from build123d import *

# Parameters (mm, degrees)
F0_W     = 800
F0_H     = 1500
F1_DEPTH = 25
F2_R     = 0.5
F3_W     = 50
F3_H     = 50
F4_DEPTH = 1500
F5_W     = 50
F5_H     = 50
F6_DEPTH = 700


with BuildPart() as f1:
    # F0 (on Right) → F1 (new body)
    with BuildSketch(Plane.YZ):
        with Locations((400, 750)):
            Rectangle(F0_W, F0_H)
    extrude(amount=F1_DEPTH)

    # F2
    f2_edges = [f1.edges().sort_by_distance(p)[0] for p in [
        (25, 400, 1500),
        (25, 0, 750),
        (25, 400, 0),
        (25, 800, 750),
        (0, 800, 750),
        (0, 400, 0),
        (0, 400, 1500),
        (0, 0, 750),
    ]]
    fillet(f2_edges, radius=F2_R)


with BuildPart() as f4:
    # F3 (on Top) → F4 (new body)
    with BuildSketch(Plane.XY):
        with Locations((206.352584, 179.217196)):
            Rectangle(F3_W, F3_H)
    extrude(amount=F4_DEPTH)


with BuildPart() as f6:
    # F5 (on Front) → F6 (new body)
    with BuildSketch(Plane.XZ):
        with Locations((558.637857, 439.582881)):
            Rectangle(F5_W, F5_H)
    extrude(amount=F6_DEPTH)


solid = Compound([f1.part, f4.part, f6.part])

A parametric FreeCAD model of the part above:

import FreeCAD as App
import Part
import Sketcher
from FreeCAD import Vector


def edges_at(feature, points):
    """Names of the edges that pass closest to the given points."""
    edges = feature.Shape.Edges
    near = lambda p: min(range(len(edges)), key=lambda i: edges[i].distToShape(Part.Vertex(*p))[0])
    return sorted({f"Edge{near(p) + 1}" for p in points})

doc = App.newDocument("Part")
body = doc.addObject("PartDesign::Body", "Body")

# Sketch on YZ plane
sketch1 = body.newObject("Sketcher::SketchObject", "Sketch")
sketch1.AttachmentSupport = (doc.getObject("YZ_Plane"), [""])
sketch1.MapMode = "FlatFace"
sketch1.addGeometry([
    Part.LineSegment(Vector(0, 1500, 0), Vector(0, 0, 0)),
    Part.LineSegment(Vector(0, 0, 0), Vector(800, 0, 0)),
    Part.LineSegment(Vector(800, 0, 0), Vector(800, 1500, 0)),
    Part.LineSegment(Vector(800, 1500, 0), Vector(0, 1500, 0)),
], False)
sketch1.addConstraint([
    Sketcher.Constraint("Coincident", 0, 2, 1, 1),
    Sketcher.Constraint("Coincident", 1, 2, 2, 1),
    Sketcher.Constraint("Coincident", 2, 2, 3, 1),
    Sketcher.Constraint("Coincident", 3, 2, 0, 1),
    Sketcher.Constraint("Vertical", 0),
    Sketcher.Constraint("Horizontal", 1),
    Sketcher.Constraint("Vertical", 2),
    Sketcher.Constraint("Horizontal", 3),
    Sketcher.Constraint("Coincident", 0, 2, -1, 1),
    Sketcher.Constraint("DistanceX", 1, 1, 1, 2, 800.0),
    Sketcher.Constraint("DistanceY", 0, 2, 0, 1, 1500.0),
])
pad1 = body.newObject("PartDesign::Pad", "Pad")
pad1.Profile = sketch1
pad1.Length = 25
doc.recompute()

fillet = body.newObject("PartDesign::Fillet", "Fillet")
fillet.Base = (pad1, edges_at(pad1, [
    (25, 400, 1500),
    (25, 0, 750),
    (25, 400, 0),
    (25, 800, 750),
    (0, 800, 750),
    (0, 400, 0),
    (0, 400, 1500),
    (0, 0, 750),
]))
fillet.Radius = 0.5
body2 = doc.addObject("PartDesign::Body", "Body001")

# Sketch on XY plane
sketch2 = body2.newObject("Sketcher::SketchObject", "Sketch001")
sketch2.AttachmentSupport = (doc.getObject("XY_Plane001"), [""])
sketch2.MapMode = "FlatFace"
sketch2.addGeometry([
    Part.LineSegment(Vector(181, 204, 0), Vector(181, 154, 0)),
    Part.LineSegment(Vector(181, 154, 0), Vector(231, 154, 0)),
    Part.LineSegment(Vector(231, 154, 0), Vector(231, 204, 0)),
    Part.LineSegment(Vector(231, 204, 0), Vector(181, 204, 0)),
], False)
sketch2.addConstraint([
    Sketcher.Constraint("Coincident", 0, 2, 1, 1),
    Sketcher.Constraint("Coincident", 1, 2, 2, 1),
    Sketcher.Constraint("Coincident", 2, 2, 3, 1),
    Sketcher.Constraint("Coincident", 3, 2, 0, 1),
    Sketcher.Constraint("Vertical", 0),
    Sketcher.Constraint("Horizontal", 1),
    Sketcher.Constraint("Vertical", 2),
    Sketcher.Constraint("Horizontal", 3),
    Sketcher.Constraint("Equal", 3, 0),
    Sketcher.Constraint("DistanceX", 1, 1, 1, 2, 50.0),
    Sketcher.Constraint("DistanceX", -1, 1, 0, 2, 181.352584),
    Sketcher.Constraint("DistanceY", -1, 1, 0, 2, 154.217196),
])
pad2 = body2.newObject("PartDesign::Pad", "Pad001")
pad2.Profile = sketch2
pad2.Length = 1500
body3 = doc.addObject("PartDesign::Body", "Body002")

# Sketch on XZ plane
sketch3 = body3.newObject("Sketcher::SketchObject", "Sketch002")
sketch3.AttachmentSupport = (doc.getObject("XZ_Plane002"), [""])
sketch3.MapMode = "FlatFace"
sketch3.addGeometry([
    Part.LineSegment(Vector(534, 465, 0), Vector(534, 415, 0)),
    Part.LineSegment(Vector(534, 415, 0), Vector(584, 415, 0)),
    Part.LineSegment(Vector(584, 415, 0), Vector(584, 465, 0)),
    Part.LineSegment(Vector(584, 465, 0), Vector(534, 465, 0)),
], False)
sketch3.addConstraint([
    Sketcher.Constraint("Coincident", 0, 2, 1, 1),
    Sketcher.Constraint("Coincident", 1, 2, 2, 1),
    Sketcher.Constraint("Coincident", 2, 2, 3, 1),
    Sketcher.Constraint("Coincident", 3, 2, 0, 1),
    Sketcher.Constraint("Vertical", 0),
    Sketcher.Constraint("Horizontal", 1),
    Sketcher.Constraint("Vertical", 2),
    Sketcher.Constraint("Horizontal", 3),
    Sketcher.Constraint("Equal", 3, 0),
    Sketcher.Constraint("DistanceX", 1, 1, 1, 2, 50.0),
    Sketcher.Constraint("DistanceY", -1, 1, 0, 2, 414.582881),
    Sketcher.Constraint("DistanceX", -1, 1, 0, 2, 533.637857),
])
pad3 = body3.newObject("PartDesign::Pad", "Pad002")
pad3.Profile = sketch3
pad3.Length = 700

doc.recompute()
